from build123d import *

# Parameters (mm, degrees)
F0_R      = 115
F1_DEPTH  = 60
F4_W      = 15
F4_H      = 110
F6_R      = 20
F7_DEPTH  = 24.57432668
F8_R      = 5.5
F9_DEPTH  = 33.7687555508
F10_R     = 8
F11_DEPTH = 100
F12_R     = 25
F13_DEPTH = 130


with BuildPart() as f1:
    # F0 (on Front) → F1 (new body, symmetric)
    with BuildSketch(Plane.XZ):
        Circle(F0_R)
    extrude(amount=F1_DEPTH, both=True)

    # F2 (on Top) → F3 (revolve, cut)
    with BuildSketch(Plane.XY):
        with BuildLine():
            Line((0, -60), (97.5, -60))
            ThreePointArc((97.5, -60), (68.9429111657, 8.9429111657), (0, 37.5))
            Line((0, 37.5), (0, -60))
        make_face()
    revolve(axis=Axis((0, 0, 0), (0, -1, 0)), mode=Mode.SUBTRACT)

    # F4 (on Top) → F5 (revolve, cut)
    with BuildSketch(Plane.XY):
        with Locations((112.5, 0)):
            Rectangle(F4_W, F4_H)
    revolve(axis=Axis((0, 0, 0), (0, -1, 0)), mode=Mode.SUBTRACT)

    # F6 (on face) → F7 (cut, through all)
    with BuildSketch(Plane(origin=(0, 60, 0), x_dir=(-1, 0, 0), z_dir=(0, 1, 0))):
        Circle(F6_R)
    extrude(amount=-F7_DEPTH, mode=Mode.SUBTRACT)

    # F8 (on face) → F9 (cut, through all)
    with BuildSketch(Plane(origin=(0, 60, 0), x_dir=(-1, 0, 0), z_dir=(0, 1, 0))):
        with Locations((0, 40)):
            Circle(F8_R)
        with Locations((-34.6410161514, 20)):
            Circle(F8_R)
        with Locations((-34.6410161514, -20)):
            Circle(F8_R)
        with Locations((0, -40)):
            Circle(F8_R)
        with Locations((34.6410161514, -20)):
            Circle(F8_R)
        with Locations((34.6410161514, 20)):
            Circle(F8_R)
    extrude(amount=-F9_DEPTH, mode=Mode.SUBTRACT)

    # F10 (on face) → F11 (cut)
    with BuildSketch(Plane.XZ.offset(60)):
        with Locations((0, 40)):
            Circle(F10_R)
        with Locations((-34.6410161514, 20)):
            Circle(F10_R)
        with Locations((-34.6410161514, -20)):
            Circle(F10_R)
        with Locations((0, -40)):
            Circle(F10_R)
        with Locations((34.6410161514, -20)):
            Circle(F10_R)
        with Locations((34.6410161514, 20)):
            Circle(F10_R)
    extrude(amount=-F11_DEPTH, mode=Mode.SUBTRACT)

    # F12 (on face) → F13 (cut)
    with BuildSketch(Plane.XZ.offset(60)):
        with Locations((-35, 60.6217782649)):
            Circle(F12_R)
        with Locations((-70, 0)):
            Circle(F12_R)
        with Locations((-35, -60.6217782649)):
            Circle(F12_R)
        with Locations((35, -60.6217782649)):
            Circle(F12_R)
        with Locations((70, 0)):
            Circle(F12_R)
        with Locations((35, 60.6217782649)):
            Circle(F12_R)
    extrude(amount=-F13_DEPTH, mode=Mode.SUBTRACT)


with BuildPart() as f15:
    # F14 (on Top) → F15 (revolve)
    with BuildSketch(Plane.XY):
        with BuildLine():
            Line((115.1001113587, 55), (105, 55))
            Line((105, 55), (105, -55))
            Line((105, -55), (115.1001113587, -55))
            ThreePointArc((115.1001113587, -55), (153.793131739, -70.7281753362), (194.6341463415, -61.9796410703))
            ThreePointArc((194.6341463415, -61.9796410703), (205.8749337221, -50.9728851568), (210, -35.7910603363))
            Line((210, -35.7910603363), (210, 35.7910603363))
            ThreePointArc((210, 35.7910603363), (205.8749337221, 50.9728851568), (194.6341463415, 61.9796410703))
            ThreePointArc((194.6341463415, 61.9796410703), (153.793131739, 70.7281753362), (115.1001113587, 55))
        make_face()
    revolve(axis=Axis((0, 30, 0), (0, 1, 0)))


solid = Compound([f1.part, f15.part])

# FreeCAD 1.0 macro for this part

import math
import FreeCAD as App
import Part
import Sketcher
from FreeCAD import Vector


def add_polygon(sketch, points):
    """Adds a closed chain of lines whose ends are joined by coincident constraints."""
    first, n = sketch.GeometryCount, len(points)
    for a, b in zip(points, points[1:] + points[:1]):
        sketch.addGeometry(Part.LineSegment(App.Vector(*a, 0), App.Vector(*b, 0)), False)
    for i in range(n):
        sketch.addConstraint(Sketcher.Constraint("Coincident", first + i, 2, first + (i + 1) % n, 1))

doc = App.newDocument("Part")
body = doc.addObject("PartDesign::Body", "Body")

# Sketch on XZ plane
sketch1 = body.newObject("Sketcher::SketchObject", "Sketch")
sketch1.AttachmentSupport = (doc.getObject("XZ_Plane"), [""])
sketch1.MapMode = "FlatFace"
sketch1.addGeometry(Part.Circle(Vector(0, 0, 0), Vector(0, 0, 1), 115), False)
sketch1.addConstraint([
    Sketcher.Constraint("Coincident", 0, 3, -1, 1),
    Sketcher.Constraint("Diameter", 0, 230.0),
])
pad1 = body.newObject("PartDesign::Pad", "Pad")
pad1.Profile = sketch1
pad1.Length = 120
pad1.Midplane = True

# Sketch on XY plane
sketch2 = body.newObject("Sketcher::SketchObject", "Sketch001")
sketch2.AttachmentSupport = (doc.getObject("XY_Plane"), [""])
sketch2.MapMode = "FlatFace"
sketch2.addGeometry([
    Part.LineSegment(Vector(0, -60, 0), Vector(98, -60, 0)),
    Part.ArcOfCircle(Part.Circle(Vector(0, -60, 0), Vector(0, 0, 1), 98), math.radians(0), math.radians(90)),
    Part.LineSegment(Vector(0, 38, 0), Vector(0, -60, 0)),
], False)
sketch2.addConstraint([
    Sketcher.Constraint("Coincident", 0, 2, 1, 1),
    Sketcher.Constraint("Coincident", 1, 2, 2, 1),
    Sketcher.Constraint("Coincident", 2, 2, 0, 1),
    Sketcher.Constraint("Horizontal", 0),
    Sketcher.Constraint("Vertical", 2),
    Sketcher.Constraint("Coincident", 2, 2, 1, 3),
    Sketcher.Constraint("PointOnObject", 1, 3, -2),
    Sketcher.Constraint("Radius", 1, 97.5),
    Sketcher.Constraint("DistanceY", 1, 3, -1, 1, 60.0),
])
groove = body.newObject("PartDesign::Groove", "Groove")
groove.Profile = sketch2
groove.ReferenceAxis = (sketch2, ["V_Axis"])
groove.Angle = 360

# Sketch on XY plane
sketch3 = body.newObject("Sketcher::SketchObject", "Sketch002")
sketch3.AttachmentSupport = (doc.getObject("XY_Plane"), [""])
sketch3.MapMode = "FlatFace"
add_polygon(sketch3, [(105, 55), (105, -55), (120, -55), (120, 55)])  # lines 0-3
sketch3.addConstraint([
    Sketcher.Constraint("Vertical", 0),
    Sketcher.Constraint("Horizontal", 1),
    Sketcher.Constraint("Vertical", 2),
    Sketcher.Constraint("Horizontal", 3),
    Sketcher.Constraint("DistanceX", 1, 1, 1, 2, 15.0),
    Sketcher.Constraint("DistanceY", 0, 2, 0, 1, 110.0),
    Sketcher.Constraint("DistanceX", -1, 1, 0, 2, 105.0),
    Sketcher.Constraint("DistanceY", 0, 2, -1, 1, 55.0),
])
groove2 = body.newObject("PartDesign::Groove", "Groove001")
groove2.Profile = sketch3
groove2.ReferenceAxis = (sketch3, ["V_Axis"])
groove2.Angle = 360

# Sketch on XZ plane
sketch4 = body.newObject("Sketcher::SketchObject", "Sketch003")
sketch4.AttachmentSupport = (doc.getObject("XZ_Plane"), [""])
sketch4.MapMode = "FlatFace"
sketch4.AttachmentOffset = App.Placement(Vector(0, 0, -60), App.Rotation())
sketch4.addGeometry(Part.Circle(Vector(0, 0, 0), Vector(0, 0, 1), 20), False)
sketch4.addConstraint([
    Sketcher.Constraint("Coincident", 0, 3, -1, 1),
    Sketcher.Constraint("Diameter", 0, 40.0),
])
pocket1 = body.newObject("PartDesign::Pocket", "Pocket")
pocket1.Profile = sketch4
pocket1.Type = "ThroughAll"
pocket1.Reversed = True

# Sketch on XZ plane
sketch5 = body.newObject("Sketcher::SketchObject", "Sketch004")
sketch5.AttachmentSupport = (doc.getObject("XZ_Plane"), [""])
sketch5.MapMode = "FlatFace"
sketch5.AttachmentOffset = App.Placement(Vector(0, 0, -60), App.Rotation())
sketch5.addGeometry([
    Part.Circle(Vector(0, 40, 0), Vector(0, 0, 1), 6),  # 0
    Part.Circle(Vector(35, 20, 0), Vector(0, 0, 1), 6),  # 1
    Part.Circle(Vector(35, -20, 0), Vector(0, 0, 1), 6),  # 2
    Part.Circle(Vector(0, -40, 0), Vector(0, 0, 1), 6),  # 3
    Part.Circle(Vector(-35, -20, 0), Vector(0, 0, 1), 6),  # 4
    Part.Circle(Vector(-35, 20, 0), Vector(0, 0, 1), 6),  # 5
], False)
sketch5.addConstraint([
    Sketcher.Constraint("Equal", 0, 1),
    Sketcher.Constraint("Equal", 1, 2),
    Sketcher.Constraint("Equal", 2, 3),
    Sketcher.Constraint("Equal", 3, 4),
    Sketcher.Constraint("Equal", 4, 5),
    Sketcher.Constraint("Symmetric", 0, 3, 3, 3, -1, 1),
    Sketcher.Constraint("Symmetric", 1, 3, 4, 3, -1, 1),
    Sketcher.Constraint("Symmetric", 2, 3, 5, 3, -1, 1),
    Sketcher.Constraint("Symmetric", 2, 3, 4, 3, -2),
    Sketcher.Constraint("PointOnObject", 0, 3, -2),
    Sketcher.Constraint("Diameter", 0, 11.0),
    Sketcher.Constraint("DistanceY", -1, 1, 0, 3, 40.0),
    Sketcher.Constraint("DistanceY", -1, 1, 1, 3, 20.0),
    Sketcher.Constraint("DistanceX", -1, 1, 1, 3, 34.641016),
])
pocket2 = body.newObject("PartDesign::Pocket", "Pocket001")
pocket2.Profile = sketch5
pocket2.Type = "ThroughAll"
pocket2.Reversed = True

# Sketch on XZ plane
sketch6 = body.newObject("Sketcher::SketchObject", "Sketch005")
sketch6.AttachmentSupport = (doc.getObject("XZ_Plane"), [""])
sketch6.MapMode = "FlatFace"
sketch6.AttachmentOffset = App.Placement(Vector(0, 0, 60), App.Rotation())
sketch6.addGeometry([
    Part.Circle(Vector(0, 40, 0), Vector(0, 0, 1), 8),  # 0
    Part.Circle(Vector(-35, 20, 0), Vector(0, 0, 1), 8),  # 1
    Part.Circle(Vector(-35, -20, 0), Vector(0, 0, 1), 8),  # 2
    Part.Circle(Vector(0, -40, 0), Vector(0, 0, 1), 8),  # 3
    Part.Circle(Vector(35, -20, 0), Vector(0, 0, 1), 8),  # 4
    Part.Circle(Vector(35, 20, 0), Vector(0, 0, 1), 8),  # 5
], False)
sketch6.addConstraint([
    Sketcher.Constraint("Equal", 0, 1),
    Sketcher.Constraint("Equal", 1, 2),
    Sketcher.Constraint("Equal", 2, 3),
    Sketcher.Constraint("Equal", 3, 4),
    Sketcher.Constraint("Equal", 4, 5),
    Sketcher.Constraint("Symmetric", 0, 3, 3, 3, -1, 1),
    Sketcher.Constraint("Symmetric", 1, 3, 4, 3, -1, 1),
    Sketcher.Constraint("Symmetric", 2, 3, 5, 3, -1, 1),
    Sketcher.Constraint("Symmetric", 2, 3, 4, 3, -2),
    Sketcher.Constraint("PointOnObject", 0, 3, -2),
    Sketcher.Constraint("Diameter", 0, 16.0),
    Sketcher.Constraint("DistanceY", -1, 1, 0, 3, 40.0),
    Sketcher.Constraint("DistanceY", -1, 1, 1, 3, 20.0),
    Sketcher.Constraint("DistanceX", 1, 3, -1, 1, 34.641016),
])
pocket3 = body.newObject("PartDesign::Pocket", "Pocket002")
pocket3.Profile = sketch6
pocket3.Length = 100

# Sketch on XZ plane
sketch7 = body.newObject("Sketcher::SketchObject", "Sketch006")
sketch7.AttachmentSupport = (doc.getObject("XZ_Plane"), [""])
sketch7.MapMode = "FlatFace"
sketch7.AttachmentOffset = App.Placement(Vector(0, 0, 60), App.Rotation())
sketch7.addGeometry([
    Part.Circle(Vector(-35, 61, 0), Vector(0, 0, 1), 25),  # 0
    Part.Circle(Vector(-70, 0, 0), Vector(0, 0, 1), 25),  # 1
    Part.Circle(Vector(-35, -61, 0), Vector(0, 0, 1), 25),  # 2
    Part.Circle(Vector(35, -61, 0), Vector(0, 0, 1), 25),  # 3
    Part.Circle(Vector(70, 0, 0), Vector(0, 0, 1), 25),  # 4
    Part.Circle(Vector(35, 61, 0), Vector(0, 0, 1), 25),  # 5
], False)
sketch7.addConstraint([
    Sketcher.Constraint("Equal", 0, 1),
    Sketcher.Constraint("Equal", 1, 2),
    Sketcher.Constraint("Equal", 2, 3),
    Sketcher.Constraint("Equal", 3, 4),
    Sketcher.Constraint("Equal", 4, 5),
    Sketcher.Constraint("Symmetric", 0, 3, 3, 3, -1, 1),
    Sketcher.Constraint("Symmetric", 1, 3, 4, 3, -1, 1),
    Sketcher.Constraint("Symmetric", 2, 3, 5, 3, -1, 1),
    Sketcher.Constraint("Symmetric", 2, 3, 3, 3, -2),
    Sketcher.Constraint("PointOnObject", 1, 3, -1),
    Sketcher.Constraint("Diameter", 0, 50.0),
    Sketcher.Constraint("DistanceX", 0, 3, -1, 1, 35.0),
    Sketcher.Constraint("DistanceX", 1, 3, -1, 1, 70.0),
    Sketcher.Constraint("DistanceY", -1, 1, 0, 3, 60.621778),
])
pocket4 = body.newObject("PartDesign::Pocket", "Pocket003")
pocket4.Profile = sketch7
pocket4.Length = 130
body2 = doc.addObject("PartDesign::Body", "Body001")

# Sketch on XY plane
sketch8 = body2.newObject("Sketcher::SketchObject", "Sketch007")
sketch8.AttachmentSupport = (doc.getObject("XY_Plane001"), [""])
sketch8.MapMode = "FlatFace"
sketch8.addGeometry([
    Part.LineSegment(Vector(115, 55, 0), Vector(105, 55, 0)),  # 0
    Part.LineSegment(Vector(105, 55, 0), Vector(105, -55, 0)),  # 1
    Part.LineSegment(Vector(105, -55, 0), Vector(115, -55, 0)),  # 2
    Part.ArcOfCircle(Part.Circle(Vector(160, 0, 0), Vector(0, 0, 1), 71), math.radians(-129), math.radians(-61)),  # 3
    Part.ArcOfCircle(Part.Circle(Vector(180, -36, 0), Vector(0, 0, 1), 30), math.radians(-61), math.radians(0)),  # 4
    Part.LineSegment(Vector(210, -36, 0), Vector(210, 36, 0)),  # 5
    Part.ArcOfCircle(Part.Circle(Vector(180, 36, 0), Vector(0, 0, 1), 30), math.radians(0), math.radians(61)),  # 6
    Part.ArcOfCircle(Part.Circle(Vector(160, 0, 0), Vector(0, 0, 1), 71), math.radians(61), math.radians(129)),  # 7
], False)
sketch8.addConstraint([
    Sketcher.Constraint("Coincident", 0, 2, 1, 1),
    Sketcher.Constraint("Coincident", 1, 2, 2, 1),
    Sketcher.Constraint("Coincident", 2, 2, 3, 1),
    Sketcher.Constraint("Tangent", 3, 2, 4, 1),
    Sketcher.Constraint("Tangent", 4, 2, 5, 1),
    Sketcher.Constraint("Tangent", 5, 2, 6, 1),
    Sketcher.Constraint("Tangent", 6, 2, 7, 1),
    Sketcher.Constraint("Coincident", 7, 2, 0, 1),
    Sketcher.Constraint("Horizontal", 0),
    Sketcher.Constraint("Vertical", 1),
    Sketcher.Constraint("Horizontal", 2),
    Sketcher.Constraint("Vertical", 5),
    Sketcher.Constraint("Coincident", 7, 3, 3, 3),
    Sketcher.Constraint("Equal", 4, 6),
    Sketcher.Constraint("Equal", 3, 7),
    Sketcher.Constraint("Symmetric", 2, 2, 7, 2, -1),
    Sketcher.Constraint("Radius", 3, 71.0),
    Sketcher.Constraint("Radius", 4, 30.0),
    Sketcher.Constraint("DistanceY", 1, 2, 1, 1, 110.0),
    Sketcher.Constraint("DistanceX", -1, 1, 3, 3, 160.0),
    Sketcher.Constraint("DistanceX", -1, 1, 4, 3, 180.0),
    Sketcher.Constraint("DistanceX", -1, 1, 0, 2, 105.0),
])
revolution = body2.newObject("PartDesign::Revolution", "Revolution")
revolution.Profile = sketch8
revolution.ReferenceAxis = (sketch8, ["V_Axis"])
revolution.Angle = 360

doc.recompute()
